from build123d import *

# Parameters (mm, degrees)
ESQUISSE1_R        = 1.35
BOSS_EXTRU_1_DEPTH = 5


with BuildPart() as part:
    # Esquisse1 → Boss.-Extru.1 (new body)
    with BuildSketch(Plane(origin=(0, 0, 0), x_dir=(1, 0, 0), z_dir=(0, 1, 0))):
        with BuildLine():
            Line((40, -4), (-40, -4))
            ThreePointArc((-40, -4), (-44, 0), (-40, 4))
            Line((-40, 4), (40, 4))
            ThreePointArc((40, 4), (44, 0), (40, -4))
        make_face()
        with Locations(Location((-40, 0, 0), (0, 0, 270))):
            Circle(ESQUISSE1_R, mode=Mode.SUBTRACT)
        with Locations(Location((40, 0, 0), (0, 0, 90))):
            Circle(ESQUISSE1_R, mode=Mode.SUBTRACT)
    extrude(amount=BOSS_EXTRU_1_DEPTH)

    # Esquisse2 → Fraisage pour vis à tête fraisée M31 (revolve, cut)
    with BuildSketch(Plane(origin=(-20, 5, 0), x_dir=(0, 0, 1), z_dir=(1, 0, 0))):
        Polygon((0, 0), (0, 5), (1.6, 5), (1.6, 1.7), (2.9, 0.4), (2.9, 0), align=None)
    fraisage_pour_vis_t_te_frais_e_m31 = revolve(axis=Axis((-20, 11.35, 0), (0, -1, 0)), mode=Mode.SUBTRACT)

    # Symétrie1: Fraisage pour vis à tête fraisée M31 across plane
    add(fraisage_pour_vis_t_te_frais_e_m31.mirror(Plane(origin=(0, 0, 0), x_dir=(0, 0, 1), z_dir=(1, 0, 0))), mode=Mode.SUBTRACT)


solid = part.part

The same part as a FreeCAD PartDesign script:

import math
import FreeCAD as App
import Part
import Sketcher

V = App.Vector
Q = App.Units.Quantity

doc = App.newDocument("Part")
params = doc.addObject("Spreadsheet::Sheet", "Params")
for row, (alias, value) in enumerate([
    ("sketch1_radius", "4 mm"),
    ("sketch1_diameter", "2.7 mm"),
    ("sketch1_width", "80 mm"),
    ("pad1_length", "5 mm"),
    ("sketch2_width", "5 mm"),
    ("sketch2_width2", "0.4 mm"),
    ("sketch2_width3", "3.3 mm"),
    ("sketch2_height", "2.9 mm"),
    ("groove_angle", "360 deg"),
], start=1):
    params.set(f"A{row}", alias)
    params.set(f"B{row}", "=" + value)
    params.setAlias(f"B{row}", alias)

body = doc.addObject("PartDesign::Body", "Body")

# Sketch on XZ plane
sketch1 = body.newObject("Sketcher::SketchObject", "Sketch")
sketch1.AttachmentSupport = (doc.getObject("XZ_Plane"), [""])
sketch1.MapMode = "FlatFace"
sketch1.addGeometry([
    Part.LineSegment(V(-40, 4, 0), V(40, 4, 0)),  # 0
    Part.ArcOfCircle(Part.Circle(V(40, 0, 0), V(0, 0, 1), 4), math.radians(-90), math.radians(90)),  # 1
    Part.LineSegment(V(40, -4, 0), V(-40, -4, 0)),  # 2
    Part.ArcOfCircle(Part.Circle(V(-40, 0, 0), V(0, 0, 1), 4), math.radians(90), math.radians(270)),  # 3
    Part.Circle(V(40, 0, 0), V(0, 0, 1), 1.35),  # 4
    Part.Circle(V(-40, 0, 0), V(0, 0, 1), 1.35),  # 5
], False)
sketch1.addConstraint([
    Sketcher.Constraint("Tangent", 0, 2, 1, 2),
    Sketcher.Constraint("Tangent", 1, 1, 2, 1),
    Sketcher.Constraint("Tangent", 2, 2, 3, 2),
    Sketcher.Constraint("Tangent", 3, 1, 0, 1),
    Sketcher.Constraint("Horizontal", 0),
    Sketcher.Constraint("Horizontal", 2),
    Sketcher.Constraint("Coincident", 4, 3, 1, 3),
    Sketcher.Constraint("Coincident", 5, 3, 3, 3),
    Sketcher.Constraint("Equal", 4, 5),
    Sketcher.Constraint("Symmetric", 1, 3, 3, 3, -1, 1),
    Sketcher.Constraint("Radius", 1, 4.0),
    Sketcher.Constraint("Diameter", 4, 2.7),
    Sketcher.Constraint("DistanceX", 0, 1, 0, 2, 80.0),
])
sketch1.setExpression("Constraints[10]", "Params.sketch1_radius")
sketch1.setExpression("Constraints[11]", "Params.sketch1_diameter")
sketch1.setExpression("Constraints[12]", "Params.sketch1_width")
pad1 = body.newObject("PartDesign::Pad", "Pad")
pad1.Profile = sketch1
pad1.setExpression("Length", "Params.pad1_length")
pad1.Reversed = True

# Sketch on YZ plane
sketch2 = body.newObject("Sketcher::SketchObject", "Sketch001")
sketch2.AttachmentSupport = (doc.getObject("YZ_Plane"), [""])
sketch2.MapMode = "FlatFace"
sketch2.AttachmentOffset = App.Placement(V(0, 0, -20), App.Rotation())
sketch2.addGeometry([
    Part.LineSegment(V(0, 0, 0), V(5, 0, 0)),  # 0
    Part.LineSegment(V(5, 0, 0), V(5, 2.9, 0)),  # 1
    Part.LineSegment(V(5, 2.9, 0), V(4.6, 2.9, 0)),  # 2
    Part.LineSegment(V(4.6, 2.9, 0), V(3.3, 1.6, 0)),  # 3
    Part.LineSegment(V(3.3, 1.6, 0), V(0, 1.6, 0)),  # 4
    Part.LineSegment(V(0, 1.6, 0), V(0, 0, 0)),  # 5
], False)
sketch2.addConstraint([
    Sketcher.Constraint("Coincident", 0, 2, 1, 1),
    Sketcher.Constraint("Coincident", 1, 2, 2, 1),
    Sketcher.Constraint("Coincident", 2, 2, 3, 1),
    Sketcher.Constraint("Coincident", 3, 2, 4, 1),
    Sketcher.Constraint("Coincident", 4, 2, 5, 1),
    Sketcher.Constraint("Coincident", 5, 2, 0, 1),
    Sketcher.Constraint("Horizontal", 0),
    Sketcher.Constraint("Vertical", 1),
    Sketcher.Constraint("Horizontal", 2),
    Sketcher.Constraint("Horizontal", 4),
    Sketcher.Constraint("Vertical", 5),
    Sketcher.Constraint("Coincident", 5, 2, -1, 1),
    Sketcher.Constraint("DistanceX", 0, 1, 0, 2, 5.0),
    Sketcher.Constraint("Angle", 3, Q("-135 deg")),
    Sketcher.Constraint("DistanceX", 2, 2, 2, 1, 0.4),
    Sketcher.Constraint("DistanceX", 4, 2, 4, 1, 3.3),
    Sketcher.Constraint("DistanceY", 1, 1, 1, 2, 2.9),
])
sketch2.setExpression("Constraints[12]", "Params.sketch2_width")
sketch2.setExpression("Constraints[14]", "Params.sketch2_width2")
sketch2.setExpression("Constraints[15]", "Params.sketch2_width3")
sketch2.setExpression("Constraints[16]", "Params.sketch2_height")
groove = body.newObject("PartDesign::Groove", "Groove")
groove.Profile = sketch2
groove.ReferenceAxis = (sketch2, ["H_Axis"])
groove.setExpression("Angle", "Params.groove_angle")
doc.recompute()

mirrored = body.newObject("PartDesign::Mirrored", "Mirrored")
mirrored.Originals = [groove]
mirrored.MirrorPlane = (doc.getObject("YZ_Plane"), [""])
body.Tip = mirrored

doc.recompute()
